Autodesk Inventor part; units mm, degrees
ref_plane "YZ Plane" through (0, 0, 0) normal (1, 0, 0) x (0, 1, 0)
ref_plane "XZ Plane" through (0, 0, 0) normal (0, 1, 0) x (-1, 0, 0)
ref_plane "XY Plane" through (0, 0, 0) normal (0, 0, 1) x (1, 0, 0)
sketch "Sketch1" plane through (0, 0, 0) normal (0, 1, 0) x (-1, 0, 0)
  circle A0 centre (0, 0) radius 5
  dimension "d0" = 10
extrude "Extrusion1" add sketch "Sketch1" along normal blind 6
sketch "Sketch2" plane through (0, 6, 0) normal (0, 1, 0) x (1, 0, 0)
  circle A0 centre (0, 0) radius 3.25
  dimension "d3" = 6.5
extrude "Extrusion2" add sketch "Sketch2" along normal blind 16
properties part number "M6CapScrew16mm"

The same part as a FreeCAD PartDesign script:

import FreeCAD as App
import Part
import Sketcher

V = App.Vector

doc = App.newDocument("Part")
body = doc.addObject("PartDesign::Body", "Body")

# Sketch on XZ plane
sketch1 = doc.addObject("Sketcher::SketchObject", "Sketch")
body.addObject(sketch1)
sketch1.AttachmentSupport = (doc.XZ_Plane, [""])
sketch1.MapMode = "FlatFace"
sketch1.addGeometry(Part.Circle(V(0, 0, 0), V(0, 0, 1), 5), False)
sketch1.addConstraint([
    Sketcher.Constraint("Coincident", 0, 3, -1, 1),
    Sketcher.Constraint("Diameter", 0, 10.0),
])
pad1 = doc.addObject("PartDesign::Pad", "Pad")
body.addObject(pad1)
pad1.Profile = sketch1
pad1.Length = 6
pad1.Reversed = True

# Sketch on XZ plane
sketch2 = doc.addObject("Sketcher::SketchObject", "Sketch001")
body.addObject(sketch2)
sketch2.AttachmentSupport = (doc.XZ_Plane, [""])
sketch2.MapMode = "FlatFace"
sketch2.AttachmentOffset = App.Placement(V(0, 0, -6), App.Rotation())
sketch2.addGeometry(Part.Circle(V(0, 0, 0), V(0, 0, 1), 3.25), False)
sketch2.addConstraint([
    Sketcher.Constraint("Coincident", 0, 3, -1, 1),
    Sketcher.Constraint("Diameter", 0, 6.5),
])
pad2 = doc.addObject("PartDesign::Pad", "Pad001")
body.addObject(pad2)
pad2.Profile = sketch2
pad2.Length = 16
pad2.Reversed = True

doc.recompute()
